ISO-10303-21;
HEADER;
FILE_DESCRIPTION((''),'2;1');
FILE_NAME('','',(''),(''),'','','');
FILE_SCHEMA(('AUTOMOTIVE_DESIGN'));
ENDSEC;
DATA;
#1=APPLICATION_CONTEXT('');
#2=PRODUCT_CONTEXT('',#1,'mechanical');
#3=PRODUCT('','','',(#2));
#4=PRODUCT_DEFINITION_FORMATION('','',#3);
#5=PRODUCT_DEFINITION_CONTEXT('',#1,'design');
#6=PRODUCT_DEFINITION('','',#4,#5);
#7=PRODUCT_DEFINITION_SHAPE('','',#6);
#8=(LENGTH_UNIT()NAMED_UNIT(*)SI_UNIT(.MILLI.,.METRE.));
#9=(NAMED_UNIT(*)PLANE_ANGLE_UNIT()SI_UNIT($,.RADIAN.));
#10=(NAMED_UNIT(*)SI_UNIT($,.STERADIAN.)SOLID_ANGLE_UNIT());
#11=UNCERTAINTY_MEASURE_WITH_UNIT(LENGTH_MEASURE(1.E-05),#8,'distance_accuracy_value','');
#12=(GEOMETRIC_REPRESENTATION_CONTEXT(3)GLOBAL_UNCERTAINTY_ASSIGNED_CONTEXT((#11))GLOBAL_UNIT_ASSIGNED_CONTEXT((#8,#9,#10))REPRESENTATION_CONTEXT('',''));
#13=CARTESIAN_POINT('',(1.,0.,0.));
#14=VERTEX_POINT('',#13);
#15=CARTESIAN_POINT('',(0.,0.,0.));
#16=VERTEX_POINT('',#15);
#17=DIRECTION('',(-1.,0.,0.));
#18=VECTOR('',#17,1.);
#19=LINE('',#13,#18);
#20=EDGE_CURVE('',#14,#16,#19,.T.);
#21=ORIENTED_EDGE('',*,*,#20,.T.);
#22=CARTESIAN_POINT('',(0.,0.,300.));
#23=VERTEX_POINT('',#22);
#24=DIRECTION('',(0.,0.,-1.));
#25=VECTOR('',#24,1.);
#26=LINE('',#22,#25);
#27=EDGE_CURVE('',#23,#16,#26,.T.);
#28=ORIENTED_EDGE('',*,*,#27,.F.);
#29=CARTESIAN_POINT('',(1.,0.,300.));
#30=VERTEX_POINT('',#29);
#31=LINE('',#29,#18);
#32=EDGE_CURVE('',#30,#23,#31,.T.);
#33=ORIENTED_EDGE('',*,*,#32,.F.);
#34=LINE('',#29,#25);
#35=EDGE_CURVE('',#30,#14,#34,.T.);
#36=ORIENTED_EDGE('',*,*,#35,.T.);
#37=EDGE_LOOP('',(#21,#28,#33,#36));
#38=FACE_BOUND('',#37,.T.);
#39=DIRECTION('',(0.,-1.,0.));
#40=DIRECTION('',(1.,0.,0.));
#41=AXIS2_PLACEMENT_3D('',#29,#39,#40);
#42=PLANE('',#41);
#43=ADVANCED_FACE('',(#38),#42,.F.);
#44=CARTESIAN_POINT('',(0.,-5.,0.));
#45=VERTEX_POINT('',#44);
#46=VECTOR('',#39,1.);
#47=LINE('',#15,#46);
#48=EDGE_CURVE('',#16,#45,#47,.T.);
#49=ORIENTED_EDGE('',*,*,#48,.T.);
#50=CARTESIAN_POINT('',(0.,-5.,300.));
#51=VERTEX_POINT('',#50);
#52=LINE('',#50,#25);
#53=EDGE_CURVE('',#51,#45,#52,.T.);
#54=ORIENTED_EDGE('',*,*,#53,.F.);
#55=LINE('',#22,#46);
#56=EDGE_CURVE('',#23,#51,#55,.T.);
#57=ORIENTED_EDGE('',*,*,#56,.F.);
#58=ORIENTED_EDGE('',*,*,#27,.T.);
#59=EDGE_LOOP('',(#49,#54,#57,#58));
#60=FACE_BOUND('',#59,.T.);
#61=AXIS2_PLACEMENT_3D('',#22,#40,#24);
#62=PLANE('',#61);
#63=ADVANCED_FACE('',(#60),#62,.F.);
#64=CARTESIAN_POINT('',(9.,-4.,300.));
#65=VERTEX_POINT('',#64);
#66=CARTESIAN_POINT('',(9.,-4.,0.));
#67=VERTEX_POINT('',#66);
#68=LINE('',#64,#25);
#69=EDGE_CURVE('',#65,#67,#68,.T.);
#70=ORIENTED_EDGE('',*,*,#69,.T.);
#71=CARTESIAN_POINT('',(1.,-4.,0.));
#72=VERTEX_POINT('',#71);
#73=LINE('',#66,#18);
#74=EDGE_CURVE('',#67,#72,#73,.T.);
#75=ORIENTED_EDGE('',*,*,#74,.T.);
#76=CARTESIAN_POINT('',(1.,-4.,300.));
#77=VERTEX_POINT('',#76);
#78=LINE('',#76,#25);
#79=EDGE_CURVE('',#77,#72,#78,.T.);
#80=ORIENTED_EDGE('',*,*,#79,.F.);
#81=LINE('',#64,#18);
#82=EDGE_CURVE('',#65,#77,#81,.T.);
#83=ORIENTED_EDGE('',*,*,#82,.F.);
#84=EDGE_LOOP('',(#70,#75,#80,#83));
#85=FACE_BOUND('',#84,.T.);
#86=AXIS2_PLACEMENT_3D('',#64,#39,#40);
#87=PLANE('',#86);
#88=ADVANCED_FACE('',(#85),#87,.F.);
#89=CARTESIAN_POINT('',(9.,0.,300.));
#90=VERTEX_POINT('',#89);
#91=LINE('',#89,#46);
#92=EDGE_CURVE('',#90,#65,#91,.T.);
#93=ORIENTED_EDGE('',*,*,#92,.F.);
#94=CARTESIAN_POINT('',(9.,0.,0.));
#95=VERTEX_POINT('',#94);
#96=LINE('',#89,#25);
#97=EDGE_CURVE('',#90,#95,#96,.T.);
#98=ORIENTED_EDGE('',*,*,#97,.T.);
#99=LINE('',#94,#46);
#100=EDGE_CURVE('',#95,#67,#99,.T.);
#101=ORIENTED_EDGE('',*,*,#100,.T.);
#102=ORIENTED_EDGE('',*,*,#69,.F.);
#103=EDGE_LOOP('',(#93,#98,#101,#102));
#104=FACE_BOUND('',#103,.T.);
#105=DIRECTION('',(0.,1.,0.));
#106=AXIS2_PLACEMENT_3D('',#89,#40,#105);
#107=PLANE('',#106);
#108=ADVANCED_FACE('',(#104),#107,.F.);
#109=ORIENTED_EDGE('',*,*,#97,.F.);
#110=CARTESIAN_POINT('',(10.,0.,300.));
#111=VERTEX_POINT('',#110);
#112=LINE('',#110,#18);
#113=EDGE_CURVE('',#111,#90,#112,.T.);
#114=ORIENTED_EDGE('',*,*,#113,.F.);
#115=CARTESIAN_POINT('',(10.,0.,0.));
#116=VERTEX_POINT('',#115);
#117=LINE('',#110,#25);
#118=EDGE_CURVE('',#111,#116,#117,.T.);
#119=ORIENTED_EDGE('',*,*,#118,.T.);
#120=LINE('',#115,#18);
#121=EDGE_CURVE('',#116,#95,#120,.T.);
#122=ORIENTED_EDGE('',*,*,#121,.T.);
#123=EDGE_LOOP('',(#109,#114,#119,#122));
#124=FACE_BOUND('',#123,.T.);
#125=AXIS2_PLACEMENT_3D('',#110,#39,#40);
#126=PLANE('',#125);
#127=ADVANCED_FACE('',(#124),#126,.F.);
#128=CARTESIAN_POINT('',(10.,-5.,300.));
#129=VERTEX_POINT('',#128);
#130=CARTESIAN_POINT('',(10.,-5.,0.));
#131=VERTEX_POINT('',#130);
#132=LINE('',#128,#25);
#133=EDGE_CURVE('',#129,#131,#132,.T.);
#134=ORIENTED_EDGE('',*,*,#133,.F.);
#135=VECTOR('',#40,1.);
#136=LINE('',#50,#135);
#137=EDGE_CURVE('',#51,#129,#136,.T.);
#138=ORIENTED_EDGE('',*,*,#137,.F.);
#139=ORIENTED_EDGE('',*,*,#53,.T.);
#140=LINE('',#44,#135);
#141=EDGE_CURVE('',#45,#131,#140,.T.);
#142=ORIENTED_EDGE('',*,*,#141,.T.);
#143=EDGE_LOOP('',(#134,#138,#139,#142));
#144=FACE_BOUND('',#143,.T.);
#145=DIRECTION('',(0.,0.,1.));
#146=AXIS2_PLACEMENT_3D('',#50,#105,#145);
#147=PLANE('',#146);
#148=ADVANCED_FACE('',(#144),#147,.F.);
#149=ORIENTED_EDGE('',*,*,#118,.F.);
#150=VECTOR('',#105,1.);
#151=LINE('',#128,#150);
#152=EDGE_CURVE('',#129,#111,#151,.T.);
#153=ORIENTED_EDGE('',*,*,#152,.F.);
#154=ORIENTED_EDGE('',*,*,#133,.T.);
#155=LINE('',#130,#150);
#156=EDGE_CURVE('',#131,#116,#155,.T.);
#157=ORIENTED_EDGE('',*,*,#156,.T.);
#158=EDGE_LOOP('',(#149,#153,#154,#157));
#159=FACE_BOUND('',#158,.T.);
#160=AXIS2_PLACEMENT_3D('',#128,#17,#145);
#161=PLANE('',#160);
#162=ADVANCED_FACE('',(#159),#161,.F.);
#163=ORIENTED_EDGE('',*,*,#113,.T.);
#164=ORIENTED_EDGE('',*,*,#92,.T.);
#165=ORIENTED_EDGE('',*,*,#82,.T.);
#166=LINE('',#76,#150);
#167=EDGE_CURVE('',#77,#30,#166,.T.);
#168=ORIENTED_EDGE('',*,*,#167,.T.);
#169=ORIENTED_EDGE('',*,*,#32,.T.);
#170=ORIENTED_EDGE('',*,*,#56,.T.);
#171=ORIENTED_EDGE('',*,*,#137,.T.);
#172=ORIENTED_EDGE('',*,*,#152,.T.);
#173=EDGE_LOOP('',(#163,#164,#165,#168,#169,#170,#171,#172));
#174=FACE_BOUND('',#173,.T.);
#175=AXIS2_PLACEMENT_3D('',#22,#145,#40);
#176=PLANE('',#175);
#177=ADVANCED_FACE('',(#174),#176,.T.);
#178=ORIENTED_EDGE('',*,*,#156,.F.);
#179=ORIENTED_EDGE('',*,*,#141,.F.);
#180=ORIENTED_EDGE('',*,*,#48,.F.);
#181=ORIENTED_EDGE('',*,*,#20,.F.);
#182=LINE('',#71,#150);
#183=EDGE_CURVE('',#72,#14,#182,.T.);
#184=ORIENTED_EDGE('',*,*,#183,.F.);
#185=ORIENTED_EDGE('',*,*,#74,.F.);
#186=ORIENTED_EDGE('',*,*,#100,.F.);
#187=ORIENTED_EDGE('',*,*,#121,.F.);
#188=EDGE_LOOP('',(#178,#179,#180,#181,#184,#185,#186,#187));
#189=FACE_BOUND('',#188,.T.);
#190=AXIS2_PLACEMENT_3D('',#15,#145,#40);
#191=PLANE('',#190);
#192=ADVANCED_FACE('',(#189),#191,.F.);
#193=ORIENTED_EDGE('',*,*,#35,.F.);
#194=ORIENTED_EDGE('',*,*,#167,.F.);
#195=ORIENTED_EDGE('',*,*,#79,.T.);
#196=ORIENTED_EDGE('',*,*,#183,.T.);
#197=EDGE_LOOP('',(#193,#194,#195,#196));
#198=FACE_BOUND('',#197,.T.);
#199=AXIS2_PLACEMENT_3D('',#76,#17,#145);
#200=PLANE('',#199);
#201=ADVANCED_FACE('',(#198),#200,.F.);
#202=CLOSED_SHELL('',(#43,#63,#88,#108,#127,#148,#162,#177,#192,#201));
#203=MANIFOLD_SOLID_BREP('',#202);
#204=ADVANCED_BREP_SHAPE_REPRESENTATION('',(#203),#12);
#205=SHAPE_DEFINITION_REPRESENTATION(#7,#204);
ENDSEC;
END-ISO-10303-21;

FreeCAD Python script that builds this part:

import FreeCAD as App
import Part
import Sketcher

doc = App.newDocument("Part")
body = doc.addObject("PartDesign::Body", "Body")

sketch1 = body.newObject("Sketcher::SketchObject", "Sketch")
sketch1.AttachmentSupport = (doc.getObject("XY_Plane"), [""])
sketch1.MapMode = "FlatFace"
sketch1.addGeometry([
    Part.LineSegment(App.Vector(0, 0, 0), App.Vector(0, -5, 0)),
    Part.LineSegment(App.Vector(0, -5, 0), App.Vector(10, -5, 0)),
    Part.LineSegment(App.Vector(10, -5, 0), App.Vector(10, 0, 0)),
    Part.LineSegment(App.Vector(10, 0, 0), App.Vector(9, 0, 0)),
    Part.LineSegment(App.Vector(9, 0, 0), App.Vector(9, -4, 0)),
    Part.LineSegment(App.Vector(9, -4, 0), App.Vector(1, -4, 0)),
    Part.LineSegment(App.Vector(1, -4, 0), App.Vector(1, 0, 0)),
    Part.LineSegment(App.Vector(1, 0, 0), App.Vector(0, 0, 0)),
], False)
sketch1.addConstraint([
    Sketcher.Constraint("Coincident", 0, 2, 1, 1),
    Sketcher.Constraint("Coincident", 1, 2, 2, 1),
    Sketcher.Constraint("Coincident", 2, 2, 3, 1),
    Sketcher.Constraint("Coincident", 3, 2, 4, 1),
    Sketcher.Constraint("Coincident", 4, 2, 5, 1),
    Sketcher.Constraint("Coincident", 5, 2, 6, 1),
    Sketcher.Constraint("Coincident", 6, 2, 7, 1),
    Sketcher.Constraint("Coincident", 7, 2, 0, 1),
    Sketcher.Constraint("Vertical", 0),
    Sketcher.Constraint("Horizontal", 1),
    Sketcher.Constraint("Vertical", 2),
    Sketcher.Constraint("Horizontal", 3),
    Sketcher.Constraint("Vertical", 4),
    Sketcher.Constraint("Horizontal", 5),
    Sketcher.Constraint("Vertical", 6),
    Sketcher.Constraint("Horizontal", 7),
    Sketcher.Constraint("Coincident", 7, 2, -1, 1),
    Sketcher.Constraint("PointOnObject", 2, 2, -1),
    Sketcher.Constraint("Equal", 3, 7),
    Sketcher.Constraint("DistanceX", 1, 1, 1, 2, 10.0),
    Sketcher.Constraint("DistanceX", 3, 2, 3, 1, 1.0),
    Sketcher.Constraint("DistanceY", 0, 2, 0, 1, 5.0),
    Sketcher.Constraint("DistanceY", 4, 2, 4, 1, 4.0),
])
pad1 = body.newObject("PartDesign::Pad", "Pad")
pad1.Profile = sketch1
pad1.Length = 300

doc.recompute()
